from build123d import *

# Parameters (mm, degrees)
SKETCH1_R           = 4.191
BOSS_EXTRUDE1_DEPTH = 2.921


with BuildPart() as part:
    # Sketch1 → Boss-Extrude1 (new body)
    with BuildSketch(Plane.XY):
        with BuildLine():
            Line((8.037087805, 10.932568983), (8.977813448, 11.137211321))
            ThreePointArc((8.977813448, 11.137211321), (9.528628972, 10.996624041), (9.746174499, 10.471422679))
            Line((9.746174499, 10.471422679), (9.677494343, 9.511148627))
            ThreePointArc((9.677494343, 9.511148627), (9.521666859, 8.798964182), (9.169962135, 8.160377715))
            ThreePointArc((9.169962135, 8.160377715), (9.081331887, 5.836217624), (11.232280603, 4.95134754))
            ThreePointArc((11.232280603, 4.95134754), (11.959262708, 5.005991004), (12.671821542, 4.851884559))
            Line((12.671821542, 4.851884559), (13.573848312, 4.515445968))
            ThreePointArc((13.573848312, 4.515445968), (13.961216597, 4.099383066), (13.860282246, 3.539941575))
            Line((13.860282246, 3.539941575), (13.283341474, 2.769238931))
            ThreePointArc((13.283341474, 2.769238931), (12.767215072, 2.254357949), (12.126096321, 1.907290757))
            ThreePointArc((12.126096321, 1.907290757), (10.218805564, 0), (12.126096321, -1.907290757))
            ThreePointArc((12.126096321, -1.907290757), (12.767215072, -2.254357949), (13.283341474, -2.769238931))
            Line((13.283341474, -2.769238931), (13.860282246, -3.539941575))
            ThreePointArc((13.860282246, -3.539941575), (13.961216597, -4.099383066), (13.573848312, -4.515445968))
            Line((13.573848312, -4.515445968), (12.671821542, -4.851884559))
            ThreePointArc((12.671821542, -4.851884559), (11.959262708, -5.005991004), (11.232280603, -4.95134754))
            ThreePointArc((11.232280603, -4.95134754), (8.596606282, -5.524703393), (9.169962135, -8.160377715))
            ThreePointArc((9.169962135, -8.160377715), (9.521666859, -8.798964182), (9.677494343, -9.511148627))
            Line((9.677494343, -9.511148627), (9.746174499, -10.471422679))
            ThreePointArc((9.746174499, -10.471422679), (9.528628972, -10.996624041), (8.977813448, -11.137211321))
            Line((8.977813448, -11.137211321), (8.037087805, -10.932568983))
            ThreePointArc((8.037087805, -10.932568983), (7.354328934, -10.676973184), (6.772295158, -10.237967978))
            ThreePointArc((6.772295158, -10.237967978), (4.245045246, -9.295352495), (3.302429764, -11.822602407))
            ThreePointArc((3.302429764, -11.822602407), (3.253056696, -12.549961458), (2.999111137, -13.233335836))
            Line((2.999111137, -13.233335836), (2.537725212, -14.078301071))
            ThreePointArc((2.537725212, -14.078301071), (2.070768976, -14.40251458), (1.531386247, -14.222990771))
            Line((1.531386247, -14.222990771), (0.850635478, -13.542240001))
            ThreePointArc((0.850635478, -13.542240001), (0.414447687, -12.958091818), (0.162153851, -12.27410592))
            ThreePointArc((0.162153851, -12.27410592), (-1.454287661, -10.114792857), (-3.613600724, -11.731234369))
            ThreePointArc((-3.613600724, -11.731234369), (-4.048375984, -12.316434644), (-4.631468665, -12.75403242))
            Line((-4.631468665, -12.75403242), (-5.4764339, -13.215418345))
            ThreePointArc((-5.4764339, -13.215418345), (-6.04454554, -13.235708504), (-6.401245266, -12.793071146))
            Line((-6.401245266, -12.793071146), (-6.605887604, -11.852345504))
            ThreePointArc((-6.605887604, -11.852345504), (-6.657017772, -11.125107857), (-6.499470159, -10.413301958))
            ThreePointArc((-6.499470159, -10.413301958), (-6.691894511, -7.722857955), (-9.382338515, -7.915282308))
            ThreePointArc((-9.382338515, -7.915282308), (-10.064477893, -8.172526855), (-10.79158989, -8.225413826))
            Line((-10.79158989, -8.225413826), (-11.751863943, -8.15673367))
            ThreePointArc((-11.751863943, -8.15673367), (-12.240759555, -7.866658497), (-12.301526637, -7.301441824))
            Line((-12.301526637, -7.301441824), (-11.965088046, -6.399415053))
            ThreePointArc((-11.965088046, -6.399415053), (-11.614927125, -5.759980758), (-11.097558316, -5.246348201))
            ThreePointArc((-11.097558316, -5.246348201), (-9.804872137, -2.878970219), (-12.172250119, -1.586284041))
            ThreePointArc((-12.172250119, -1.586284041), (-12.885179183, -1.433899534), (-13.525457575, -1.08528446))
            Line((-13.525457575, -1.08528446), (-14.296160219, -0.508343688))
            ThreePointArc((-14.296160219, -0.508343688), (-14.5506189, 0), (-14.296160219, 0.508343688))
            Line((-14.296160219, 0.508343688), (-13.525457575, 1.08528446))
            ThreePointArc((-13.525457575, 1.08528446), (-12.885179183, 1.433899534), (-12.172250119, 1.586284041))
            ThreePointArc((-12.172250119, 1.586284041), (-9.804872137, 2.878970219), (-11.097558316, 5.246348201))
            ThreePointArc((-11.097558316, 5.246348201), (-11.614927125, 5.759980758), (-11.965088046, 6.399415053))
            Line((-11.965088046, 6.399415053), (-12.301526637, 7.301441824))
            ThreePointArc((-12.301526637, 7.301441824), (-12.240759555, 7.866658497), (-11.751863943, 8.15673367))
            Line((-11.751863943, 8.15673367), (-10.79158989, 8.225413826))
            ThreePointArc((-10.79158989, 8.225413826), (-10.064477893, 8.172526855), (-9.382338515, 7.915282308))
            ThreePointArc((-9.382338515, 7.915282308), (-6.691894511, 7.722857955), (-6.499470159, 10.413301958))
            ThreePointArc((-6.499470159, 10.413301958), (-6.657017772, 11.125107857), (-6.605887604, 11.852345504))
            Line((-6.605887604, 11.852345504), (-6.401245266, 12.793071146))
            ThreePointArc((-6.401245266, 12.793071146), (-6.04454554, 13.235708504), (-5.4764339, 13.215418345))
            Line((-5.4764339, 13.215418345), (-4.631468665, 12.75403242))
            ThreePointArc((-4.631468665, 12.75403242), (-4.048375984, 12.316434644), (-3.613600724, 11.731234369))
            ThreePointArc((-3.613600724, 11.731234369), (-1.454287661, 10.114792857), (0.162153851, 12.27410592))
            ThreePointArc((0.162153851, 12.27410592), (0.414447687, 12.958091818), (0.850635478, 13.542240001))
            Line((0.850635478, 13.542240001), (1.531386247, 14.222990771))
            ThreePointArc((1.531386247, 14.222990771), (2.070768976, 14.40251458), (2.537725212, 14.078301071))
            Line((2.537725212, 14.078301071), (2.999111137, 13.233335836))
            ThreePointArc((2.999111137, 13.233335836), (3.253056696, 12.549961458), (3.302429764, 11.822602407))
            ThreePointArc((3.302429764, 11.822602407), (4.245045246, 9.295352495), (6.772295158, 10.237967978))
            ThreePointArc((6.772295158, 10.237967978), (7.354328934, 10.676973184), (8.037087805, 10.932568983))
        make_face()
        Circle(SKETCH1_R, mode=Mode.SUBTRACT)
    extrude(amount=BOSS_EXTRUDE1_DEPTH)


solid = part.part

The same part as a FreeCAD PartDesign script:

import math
import FreeCAD as App
import Part
import Sketcher
from FreeCAD import Vector
Q = App.Units.Quantity

doc = App.newDocument("Part")
params = doc.addObject("Spreadsheet::Sheet", "Params")
for row, (alias, value) in enumerate([
    ("sketch1_radius", "0.1 in"),
    ("sketch1_diameter", "0.33 in"),
    ("sketch1_radius2", "0.08 in"),
    ("sketch1_radius3", "0.025 in"),
    ("pad1_length", "0.115 in"),
], start=1):
    params.set(f"A{row}", alias)
    params.set(f"B{row}", "=" + value)
    params.setAlias(f"B{row}", alias)

body = doc.addObject("PartDesign::Body", "Body")

# Sketch on XY plane
sketch1 = body.newObject("Sketcher::SketchObject", "Sketch")
sketch1.AttachmentSupport = (doc.getObject("XY_Plane"), [""])
sketch1.MapMode = "FlatFace"
sketch1.addGeometry([
    Part.LineSegment(Vector(9, 11.1, 0), Vector(8, 10.9, 0)),  # 0
    Part.ArcOfCircle(Part.Circle(Vector(8.6, 8.5, 0), Vector(0, 0, 1), 2.5), math.radians(102), math.radians(135)),  # 1
    Part.ArcOfCircle(Part.Circle(Vector(5, 11, 0), Vector(0, 0, 1), 1.9), math.radians(155), math.radians(335)),  # 2
    Part.ArcOfCircle(Part.Circle(Vector(0.8, 12, 0), Vector(0, 0, 1), 2.5), math.radians(-4), math.radians(29)),  # 3
    Part.LineSegment(Vector(3, 13.2, 0), Vector(2.5, 14.1, 0)),  # 4
    Part.ArcOfCircle(Part.Circle(Vector(2, 13.8, 0), Vector(0, 0, 1), 0.6), math.radians(29), math.radians(135)),  # 5
    Part.LineSegment(Vector(1.5, 14.2, 0), Vector(0.9, 13.5, 0)),  # 6
    Part.ArcOfCircle(Part.Circle(Vector(2.6, 11.7, 0), Vector(0, 0, 1), 2.5), math.radians(135), math.radians(168)),  # 7
    Part.ArcOfCircle(Part.Circle(Vector(-1.7, 12, 0), Vector(0, 0, 1), 1.9), math.radians(-172), math.radians(8)),  # 8
    Part.ArcOfCircle(Part.Circle(Vector(-5.8, 10.5, 0), Vector(0, 0, 1), 2.5), math.radians(28), math.radians(61)),  # 9
    Part.LineSegment(Vector(-4.6, 12.8, 0), Vector(-5.5, 13.2, 0)),  # 10
    Part.ArcOfCircle(Part.Circle(Vector(-5.8, 12.7, 0), Vector(0, 0, 1), 0.6), math.radians(61), math.radians(168)),  # 11
    Part.LineSegment(Vector(-6.4, 12.8, 0), Vector(-6.6, 11.9, 0)),  # 12
    Part.ArcOfCircle(Part.Circle(Vector(-4.1, 11.3, 0), Vector(0, 0, 1), 2.5), math.radians(168), math.radians(201)),  # 13
    Part.ArcOfCircle(Part.Circle(Vector(-7.9, 9.2, 0), Vector(0, 0, 1), 1.9), math.radians(-139), math.radians(41)),  # 14
    Part.ArcOfCircle(Part.Circle(Vector(-10.6, 5.7, 0), Vector(0, 0, 1), 2.5), math.radians(61), math.radians(94)),  # 15
    Part.LineSegment(Vector(-10.8, 8.2, 0), Vector(-11.8, 8.2, 0)),  # 16
    Part.ArcOfCircle(Part.Circle(Vector(-11.7, 7.5, 0), Vector(0, 0, 1), 0.6), math.radians(94), math.radians(200)),  # 17
    Part.LineSegment(Vector(-12.3, 7.3, 0), Vector(-12, 6.4, 0)),  # 18
    Part.ArcOfCircle(Part.Circle(Vector(-9.6, 7.3, 0), Vector(0, 0, 1), 2.5), math.radians(-160), math.radians(-127)),  # 19
    Part.ArcOfCircle(Part.Circle(Vector(-11.6, 3.4, 0), Vector(0, 0, 1), 1.9), math.radians(-106), math.radians(74)),  # 20
    Part.ArcOfCircle(Part.Circle(Vector(-12, -0.9, 0), Vector(0, 0, 1), 2.5), math.radians(94), math.radians(127)),  # 21
    Part.LineSegment(Vector(-13.5, 1.1, 0), Vector(-14.3, 0.5, 0)),  # 22
    Part.ArcOfCircle(Part.Circle(Vector(-13.9, 0, 0), Vector(0, 0, 1), 0.6), math.radians(127), math.radians(233)),  # 23
    Part.LineSegment(Vector(-14.3, -0.5, 0), Vector(-13.5, -1.1, 0)),  # 24
    Part.ArcOfCircle(Part.Circle(Vector(-12, 0.9, 0), Vector(0, 0, 1), 2.5), math.radians(-127), math.radians(-94)),  # 25
    Part.ArcOfCircle(Part.Circle(Vector(-11.6, -3.4, 0), Vector(0, 0, 1), 1.9), math.radians(-74), math.radians(106)),  # 26
    Part.ArcOfCircle(Part.Circle(Vector(-9.6, -7.3, 0), Vector(0, 0, 1), 2.5), math.radians(127), math.radians(160)),  # 27
    Part.LineSegment(Vector(-12, -6.4, 0), Vector(-12.3, -7.3, 0)),  # 28
    Part.ArcOfCircle(Part.Circle(Vector(-11.7, -7.5, 0), Vector(0, 0, 1), 0.6), math.radians(160), math.radians(266)),  # 29
    Part.LineSegment(Vector(-11.8, -8.2, 0), Vector(-10.8, -8.2, 0)),  # 30
    Part.ArcOfCircle(Part.Circle(Vector(-10.6, -5.7, 0), Vector(0, 0, 1), 2.5), math.radians(-94), math.radians(-61)),  # 31
    Part.ArcOfCircle(Part.Circle(Vector(-7.9, -9.2, 0), Vector(0, 0, 1), 1.9), math.radians(-41), math.radians(139)),  # 32
    Part.ArcOfCircle(Part.Circle(Vector(-4.1, -11.3, 0), Vector(0, 0, 1), 2.5), math.radians(159), math.radians(192)),  # 33
    Part.LineSegment(Vector(-6.6, -11.9, 0), Vector(-6.4, -12.8, 0)),  # 34
    Part.ArcOfCircle(Part.Circle(Vector(-5.8, -12.7, 0), Vector(0, 0, 1), 0.6), math.radians(-168), math.radians(-61)),  # 35
    Part.LineSegment(Vector(-5.5, -13.2, 0), Vector(-4.6, -12.8, 0)),  # 36
    Part.ArcOfCircle(Part.Circle(Vector(-5.8, -10.5, 0), Vector(0, 0, 1), 2.5), math.radians(-61), math.radians(-28)),  # 37
    Part.ArcOfCircle(Part.Circle(Vector(-1.7, -12, 0), Vector(0, 0, 1), 1.9), math.radians(-8), math.radians(172)),  # 38
    Part.ArcOfCircle(Part.Circle(Vector(2.6, -11.7, 0), Vector(0, 0, 1), 2.5), math.radians(-168), math.radians(-135)),  # 39
    Part.LineSegment(Vector(0.9, -13.5, 0), Vector(1.5, -14.2, 0)),  # 40
    Part.ArcOfCircle(Part.Circle(Vector(2, -13.8, 0), Vector(0, 0, 1), 0.6), math.radians(-135), math.radians(-29)),  # 41
    Part.LineSegment(Vector(2.5, -14.1, 0), Vector(3, -13.2, 0)),  # 42
    Part.ArcOfCircle(Part.Circle(Vector(0.8, -12, 0), Vector(0, 0, 1), 2.5), math.radians(-29), math.radians(4)),  # 43
    Part.ArcOfCircle(Part.Circle(Vector(5, -11, 0), Vector(0, 0, 1), 1.9), math.radians(25), math.radians(205)),  # 44
    Part.ArcOfCircle(Part.Circle(Vector(8.6, -8.5, 0), Vector(0, 0, 1), 2.5), math.radians(-135), math.radians(-102)),  # 45
    Part.LineSegment(Vector(8, -10.9, 0), Vector(9, -11.1, 0)),  # 46
    Part.ArcOfCircle(Part.Circle(Vector(9.1, -10.5, 0), Vector(0, 0, 1), 0.6), math.radians(-102), math.radians(4)),  # 47
    Part.LineSegment(Vector(9.7, -10.5, 0), Vector(9.7, -9.5, 0)),  # 48
    Part.ArcOfCircle(Part.Circle(Vector(7.1, -9.7, 0), Vector(0, 0, 1), 2.5), math.radians(4), math.radians(37)),  # 49
    Part.ArcOfCircle(Part.Circle(Vector(10.2, -6.6, 0), Vector(0, 0, 1), 1.9), math.radians(57), math.radians(237)),  # 50
    Part.ArcOfCircle(Part.Circle(Vector(11.8, -2.5, 0), Vector(0, 0, 1), 2.5), math.radians(-103), math.radians(-70)),  # 51
    Part.LineSegment(Vector(12.7, -4.9, 0), Vector(13.6, -4.5, 0)),  # 52
    Part.ArcOfCircle(Part.Circle(Vector(13.4, -3.9, 0), Vector(0, 0, 1), 0.6), math.radians(-70), math.radians(37)),  # 53
    Part.LineSegment(Vector(13.9, -3.5, 0), Vector(13.3, -2.8, 0)),  # 54
    Part.ArcOfCircle(Part.Circle(Vector(11.2, -4.3, 0), Vector(0, 0, 1), 2.5), math.radians(37), math.radians(70)),  # 55
    Part.ArcOfCircle(Part.Circle(Vector(12.1, 0, 0), Vector(0, 0, 1), 1.9), math.radians(90), math.radians(270)),  # 56
    Part.ArcOfCircle(Part.Circle(Vector(11.2, 4.3, 0), Vector(0, 0, 1), 2.5), math.radians(-70), math.radians(-37)),  # 57
    Part.LineSegment(Vector(13.3, 2.8, 0), Vector(13.9, 3.5, 0)),  # 58
    Part.ArcOfCircle(Part.Circle(Vector(13.4, 3.9, 0), Vector(0, 0, 1), 0.6), math.radians(-37), math.radians(70)),  # 59
    Part.LineSegment(Vector(13.6, 4.5, 0), Vector(12.7, 4.9, 0)),  # 60
    Part.ArcOfCircle(Part.Circle(Vector(11.8, 2.5, 0), Vector(0, 0, 1), 2.5), math.radians(70), math.radians(103)),  # 61
    Part.ArcOfCircle(Part.Circle(Vector(10.8, 6.9, 0), Vector(0, 0, 1), 2), math.radians(143), math.radians(283)),  # 62
    Part.ArcOfCircle(Part.Circle(Vector(7.1, 9.7, 0), Vector(0, 0, 1), 2.5), math.radians(-37), math.radians(-4)),  # 63
    Part.LineSegment(Vector(9.7, 9.5, 0), Vector(9.7, 10.5, 0)),  # 64
    Part.ArcOfCircle(Part.Circle(Vector(9.1, 10.5, 0), Vector(0, 0, 1), 0.6), math.radians(-4), math.radians(102)),  # 65
    Part.Circle(Vector(0, 0, 0), Vector(0, 0, 1), 4.2),  # 66
], False)
sketch1.addConstraint([
    Sketcher.Constraint("Tangent", 0, 2, 1, 1),
    Sketcher.Constraint("Coincident", 1, 2, 2, 2),
    Sketcher.Constraint("Coincident", 2, 1, 3, 1),
    Sketcher.Constraint("Tangent", 3, 2, 4, 1),
    Sketcher.Constraint("Tangent", 4, 2, 5, 1),
    Sketcher.Constraint("Tangent", 5, 2, 6, 1),
    Sketcher.Constraint("Tangent", 6, 2, 7, 1),
    Sketcher.Constraint("Coincident", 7, 2, 8, 2),
    Sketcher.Constraint("Coincident", 8, 1, 9, 1),
    Sketcher.Constraint("Tangent", 9, 2, 10, 1),
    Sketcher.Constraint("Tangent", 10, 2, 11, 1),
    Sketcher.Constraint("Tangent", 11, 2, 12, 1),
    Sketcher.Constraint("Tangent", 12, 2, 13, 1),
    Sketcher.Constraint("Coincident", 13, 2, 14, 2),
    Sketcher.Constraint("Coincident", 14, 1, 15, 1),
    Sketcher.Constraint("Tangent", 15, 2, 16, 1),
    Sketcher.Constraint("Tangent", 16, 2, 17, 1),
    Sketcher.Constraint("Tangent", 17, 2, 18, 1),
    Sketcher.Constraint("Tangent", 18, 2, 19, 1),
    Sketcher.Constraint("Coincident", 19, 2, 20, 2),
    Sketcher.Constraint("Coincident", 20, 1, 21, 1),
    Sketcher.Constraint("Tangent", 21, 2, 22, 1),
    Sketcher.Constraint("Tangent", 22, 2, 23, 1),
    Sketcher.Constraint("Tangent", 23, 2, 24, 1),
    Sketcher.Constraint("Tangent", 24, 2, 25, 1),
    Sketcher.Constraint("Coincident", 25, 2, 26, 2),
    Sketcher.Constraint("Coincident", 26, 1, 27, 1),
    Sketcher.Constraint("Tangent", 27, 2, 28, 1),
    Sketcher.Constraint("Tangent", 28, 2, 29, 1),
    Sketcher.Constraint("Tangent", 29, 2, 30, 1),
    Sketcher.Constraint("Tangent", 30, 2, 31, 1),
    Sketcher.Constraint("Coincident", 31, 2, 32, 2),
    Sketcher.Constraint("Coincident", 32, 1, 33, 1),
    Sketcher.Constraint("Tangent", 33, 2, 34, 1),
    Sketcher.Constraint("Tangent", 34, 2, 35, 1),
    Sketcher.Constraint("Tangent", 35, 2, 36, 1),
    Sketcher.Constraint("Tangent", 36, 2, 37, 1),
    Sketcher.Constraint("Coincident", 37, 2, 38, 2),
    Sketcher.Constraint("Coincident", 38, 1, 39, 1),
    Sketcher.Constraint("Tangent", 39, 2, 40, 1),
    Sketcher.Constraint("Tangent", 40, 2, 41, 1),
    Sketcher.Constraint("Tangent", 41, 2, 42, 1),
    Sketcher.Constraint("Tangent", 42, 2, 43, 1),
    Sketcher.Constraint("Coincident", 43, 2, 44, 2),
    Sketcher.Constraint("Coincident", 44, 1, 45, 1),
    Sketcher.Constraint("Tangent", 45, 2, 46, 1),
    Sketcher.Constraint("Tangent", 46, 2, 47, 1),
    Sketcher.Constraint("Tangent", 47, 2, 48, 1),
    Sketcher.Constraint("Tangent", 48, 2, 49, 1),
    Sketcher.Constraint("Coincident", 49, 2, 50, 2),
    Sketcher.Constraint("Coincident", 50, 1, 51, 1),
    Sketcher.Constraint("Tangent", 51, 2, 52, 1),
    Sketcher.Constraint("Tangent", 52, 2, 53, 1),
    Sketcher.Constraint("Tangent", 53, 2, 54, 1),
    Sketcher.Constraint("Tangent", 54, 2, 55, 1),
    Sketcher.Constraint("Coincident", 55, 2, 56, 2),
    Sketcher.Constraint("Coincident", 56, 1, 57, 1),
    Sketcher.Constraint("Tangent", 57, 2, 58, 1),
    Sketcher.Constraint("Tangent", 58, 2, 59, 1),
    Sketcher.Constraint("Tangent", 59, 2, 60, 1),
    Sketcher.Constraint("Tangent", 60, 2, 61, 1),
    Sketcher.Constraint("Tangent", 61, 2, 62, 2),
    Sketcher.Constraint("Tangent", 62, 1, 63, 1),
    Sketcher.Constraint("Tangent", 63, 2, 64, 1),
    Sketcher.Constraint("Tangent", 64, 2, 65, 1),
    Sketcher.Constraint("Tangent", 65, 2, 0, 1),
    Sketcher.Constraint("Coincident", 66, 3, -1, 1),
    Sketcher.Constraint("Equal", 1, 3),
    Sketcher.Constraint("Equal", 3, 7),
    Sketcher.Constraint("Equal", 2, 8),
    Sketcher.Constraint("Equal", 7, 9),
    Sketcher.Constraint("Equal", 5, 11),
    Sketcher.Constraint("Equal", 9, 13),
    Sketcher.Constraint("Equal", 8, 14),
    Sketcher.Constraint("Equal", 13, 15),
    Sketcher.Constraint("Equal", 11, 17),
    Sketcher.Constraint("Equal", 15, 19),
    Sketcher.Constraint("Equal", 14, 20),
    Sketcher.Constraint("Equal", 19, 21),
    Sketcher.Constraint("Equal", 17, 23),
    Sketcher.Constraint("Equal", 21, 25),
    Sketcher.Constraint("Equal", 20, 26),
    Sketcher.Constraint("Equal", 25, 27),
    Sketcher.Constraint("Equal", 23, 29),
    Sketcher.Constraint("Equal", 27, 31),
    Sketcher.Constraint("Equal", 26, 32),
    Sketcher.Constraint("Equal", 31, 33),
    Sketcher.Constraint("Equal", 29, 35),
    Sketcher.Constraint("Equal", 33, 37),
    Sketcher.Constraint("Equal", 32, 38),
    Sketcher.Constraint("Equal", 37, 39),
    Sketcher.Constraint("Equal", 35, 41),
    Sketcher.Constraint("Equal", 39, 43),
    Sketcher.Constraint("Equal", 38, 44),
    Sketcher.Constraint("Equal", 43, 45),
    Sketcher.Constraint("Equal", 41, 47),
    Sketcher.Constraint("Equal", 45, 49),
    Sketcher.Constraint("Equal", 44, 50),
    Sketcher.Constraint("Equal", 49, 51),
    Sketcher.Constraint("Equal", 47, 53),
    Sketcher.Constraint("Equal", 51, 55),
    Sketcher.Constraint("Equal", 50, 56),
    Sketcher.Constraint("Equal", 55, 57),
    Sketcher.Constraint("Equal", 53, 59),
    Sketcher.Constraint("Equal", 57, 61),
    Sketcher.Constraint("Equal", 61, 63),
    Sketcher.Constraint("Equal", 59, 65),
    Sketcher.Constraint("Symmetric", 21, 3, 25, 3, -1),
    Sketcher.Constraint("Symmetric", 20, 3, 26, 3, -1),
    Sketcher.Constraint("Symmetric", 19, 3, 27, 3, -1),
    Sketcher.Constraint("Symmetric", 17, 3, 29, 3, -1),
    Sketcher.Constraint("Symmetric", 15, 3, 31, 3, -1),
    Sketcher.Constraint("Symmetric", 14, 3, 32, 3, -1),
    Sketcher.Constraint("Symmetric", 13, 3, 33, 3, -1),
    Sketcher.Constraint("Symmetric", 11, 3, 35, 3, -1),
    Sketcher.Constraint("Symmetric", 9, 3, 37, 3, -1),
    Sketcher.Constraint("Symmetric", 8, 3, 38, 3, -1),
    Sketcher.Constraint("Symmetric", 7, 3, 39, 3, -1),
    Sketcher.Constraint("Symmetric", 5, 3, 41, 3, -1),
    Sketcher.Constraint("Symmetric", 3, 3, 43, 3, -1),
    Sketcher.Constraint("Symmetric", 2, 3, 44, 3, -1),
    Sketcher.Constraint("Symmetric", 1, 3, 45, 3, -1),
    Sketcher.Constraint("Symmetric", 55, 3, 57, 3, -1),
    Sketcher.Constraint("Symmetric", 53, 3, 59, 3, -1),
    Sketcher.Constraint("Symmetric", 51, 3, 61, 3, -1),
    Sketcher.Constraint("Symmetric", 49, 3, 63, 3, -1),
    Sketcher.Constraint("Symmetric", 47, 3, 65, 3, -1),
    Sketcher.Constraint("PointOnObject", 23, 3, -1),
    Sketcher.Constraint("PointOnObject", 56, 3, -1),
    Sketcher.Constraint("Perpendicular", 0, 34),
    Sketcher.Constraint("Perpendicular", 4, 36),
    Sketcher.Constraint("Perpendicular", 6, 40),
    Sketcher.Constraint("Perpendicular", 16, 48),
    Sketcher.Constraint("Perpendicular", 18, 52),
    Sketcher.Constraint("Perpendicular", 22, 54),
    Sketcher.Constraint("Vertical", 56, 3, 55, 2),
    Sketcher.Constraint("Vertical", 50, 1, 61, 2),
    Sketcher.Constraint("Vertical", 49, 2, 62, 1),
    Sketcher.Constraint("Equal", 0, 4),
    Sketcher.Constraint("Equal", 4, 6),
    Sketcher.Constraint("Equal", 6, 10),
    Sketcher.Constraint("Equal", 10, 12),
    Sketcher.Constraint("Equal", 12, 16),
    Sketcher.Constraint("Equal", 16, 18),
    Sketcher.Constraint("Equal", 18, 22),
    Sketcher.Constraint("Equal", 46, 48),
    Sketcher.Constraint("Equal", 48, 52),
    Sketcher.Constraint("Equal", 52, 54),
    Sketcher.Constraint("Radius", 1, Q("0.1 in")),
    Sketcher.Constraint("Diameter", 66, Q("0.33 in")),
    Sketcher.Constraint("Radius", 62, Q("0.08 in")),
    Sketcher.Constraint("Radius", 5, Q("0.025 in")),
    Sketcher.Constraint("Radius", 2, Q("1.907291 mm")),
    Sketcher.Constraint("DistanceX", -1, 1, 5, 3, Q("1.980399 mm")),
    Sketcher.Constraint("DistanceY", -1, 1, 62, 3, Q("6.9348 mm")),
    Sketcher.Constraint("DistanceY", -1, 1, 4, 2, Q("14.078301 mm")),
    Sketcher.Constraint("DistanceX", 8, 1, -1, 1, Q("3.613601 mm")),
    Sketcher.Constraint("DistanceY", -1, 1, 13, 2, Q("10.413302 mm")),
    Sketcher.Constraint("DistanceY", -1, 1, 7, 3, Q("11.746189 mm")),
    Sketcher.Constraint("DistanceY", -1, 1, 8, 3, Q("12.00267 mm")),
    Sketcher.Constraint("DistanceX", 9, 3, -1, 1, Q("5.848761 mm")),
    Sketcher.Constraint("DistanceY", -1, 1, 13, 3, Q("11.31243 mm")),
    Sketcher.Constraint("DistanceX", 15, 3, -1, 1, Q("10.610388 mm")),
    Sketcher.Constraint("DistanceY", -1, 1, 17, 3, Q("7.523352 mm")),
    Sketcher.Constraint("DistanceY", 21, 3, -1, 1, Q("0.94809 mm")),
    Sketcher.Constraint("DistanceX", 23, 3, -1, 1, Q("13.915619 mm")),
    Sketcher.Constraint("DistanceY", 49, 3, -1, 1, Q("9.69235 mm")),
    Sketcher.Constraint("DistanceX", -1, 1, 50, 3, Q("10.201121 mm")),
    Sketcher.Constraint("DistanceX", -1, 1, 53, 3, Q("13.351939 mm")),
    Sketcher.Constraint("DistanceX", -1, 1, 62, 3, Q("10.790759 mm")),
    Sketcher.Constraint("DistanceY", -1, 1, 0, 2, Q("10.932569 mm")),
    Sketcher.Constraint("DistanceX", -1, 1, 2, 1, Q("3.30243 mm")),
    Sketcher.Constraint("DistanceX", -1, 1, 3, 2, Q("2.999111 mm")),
    Sketcher.Constraint("DistanceY", -1, 1, 10, 2, Q("13.215418 mm")),
    Sketcher.Constraint("DistanceX", 19, 2, -1, 1, Q("11.097558 mm")),
    Sketcher.Constraint("DistanceX", -1, 1, 2, 3, Q("5.037362 mm")),
    Sketcher.Constraint("DistanceX", 14, 3, -1, 1, Q("7.940904 mm")),
    Sketcher.Constraint("DistanceX", 20, 3, -1, 1, Q("11.634904 mm")),
])
sketch1.setExpression("Constraints[148]", "Params.sketch1_radius")
sketch1.setExpression("Constraints[149]", "Params.sketch1_diameter")
sketch1.setExpression("Constraints[150]", "Params.sketch1_radius2")
sketch1.setExpression("Constraints[151]", "Params.sketch1_radius3")
pad1 = body.newObject("PartDesign::Pad", "Pad")
pad1.Profile = sketch1
pad1.setExpression("Length", "Params.pad1_length")

doc.recompute()
